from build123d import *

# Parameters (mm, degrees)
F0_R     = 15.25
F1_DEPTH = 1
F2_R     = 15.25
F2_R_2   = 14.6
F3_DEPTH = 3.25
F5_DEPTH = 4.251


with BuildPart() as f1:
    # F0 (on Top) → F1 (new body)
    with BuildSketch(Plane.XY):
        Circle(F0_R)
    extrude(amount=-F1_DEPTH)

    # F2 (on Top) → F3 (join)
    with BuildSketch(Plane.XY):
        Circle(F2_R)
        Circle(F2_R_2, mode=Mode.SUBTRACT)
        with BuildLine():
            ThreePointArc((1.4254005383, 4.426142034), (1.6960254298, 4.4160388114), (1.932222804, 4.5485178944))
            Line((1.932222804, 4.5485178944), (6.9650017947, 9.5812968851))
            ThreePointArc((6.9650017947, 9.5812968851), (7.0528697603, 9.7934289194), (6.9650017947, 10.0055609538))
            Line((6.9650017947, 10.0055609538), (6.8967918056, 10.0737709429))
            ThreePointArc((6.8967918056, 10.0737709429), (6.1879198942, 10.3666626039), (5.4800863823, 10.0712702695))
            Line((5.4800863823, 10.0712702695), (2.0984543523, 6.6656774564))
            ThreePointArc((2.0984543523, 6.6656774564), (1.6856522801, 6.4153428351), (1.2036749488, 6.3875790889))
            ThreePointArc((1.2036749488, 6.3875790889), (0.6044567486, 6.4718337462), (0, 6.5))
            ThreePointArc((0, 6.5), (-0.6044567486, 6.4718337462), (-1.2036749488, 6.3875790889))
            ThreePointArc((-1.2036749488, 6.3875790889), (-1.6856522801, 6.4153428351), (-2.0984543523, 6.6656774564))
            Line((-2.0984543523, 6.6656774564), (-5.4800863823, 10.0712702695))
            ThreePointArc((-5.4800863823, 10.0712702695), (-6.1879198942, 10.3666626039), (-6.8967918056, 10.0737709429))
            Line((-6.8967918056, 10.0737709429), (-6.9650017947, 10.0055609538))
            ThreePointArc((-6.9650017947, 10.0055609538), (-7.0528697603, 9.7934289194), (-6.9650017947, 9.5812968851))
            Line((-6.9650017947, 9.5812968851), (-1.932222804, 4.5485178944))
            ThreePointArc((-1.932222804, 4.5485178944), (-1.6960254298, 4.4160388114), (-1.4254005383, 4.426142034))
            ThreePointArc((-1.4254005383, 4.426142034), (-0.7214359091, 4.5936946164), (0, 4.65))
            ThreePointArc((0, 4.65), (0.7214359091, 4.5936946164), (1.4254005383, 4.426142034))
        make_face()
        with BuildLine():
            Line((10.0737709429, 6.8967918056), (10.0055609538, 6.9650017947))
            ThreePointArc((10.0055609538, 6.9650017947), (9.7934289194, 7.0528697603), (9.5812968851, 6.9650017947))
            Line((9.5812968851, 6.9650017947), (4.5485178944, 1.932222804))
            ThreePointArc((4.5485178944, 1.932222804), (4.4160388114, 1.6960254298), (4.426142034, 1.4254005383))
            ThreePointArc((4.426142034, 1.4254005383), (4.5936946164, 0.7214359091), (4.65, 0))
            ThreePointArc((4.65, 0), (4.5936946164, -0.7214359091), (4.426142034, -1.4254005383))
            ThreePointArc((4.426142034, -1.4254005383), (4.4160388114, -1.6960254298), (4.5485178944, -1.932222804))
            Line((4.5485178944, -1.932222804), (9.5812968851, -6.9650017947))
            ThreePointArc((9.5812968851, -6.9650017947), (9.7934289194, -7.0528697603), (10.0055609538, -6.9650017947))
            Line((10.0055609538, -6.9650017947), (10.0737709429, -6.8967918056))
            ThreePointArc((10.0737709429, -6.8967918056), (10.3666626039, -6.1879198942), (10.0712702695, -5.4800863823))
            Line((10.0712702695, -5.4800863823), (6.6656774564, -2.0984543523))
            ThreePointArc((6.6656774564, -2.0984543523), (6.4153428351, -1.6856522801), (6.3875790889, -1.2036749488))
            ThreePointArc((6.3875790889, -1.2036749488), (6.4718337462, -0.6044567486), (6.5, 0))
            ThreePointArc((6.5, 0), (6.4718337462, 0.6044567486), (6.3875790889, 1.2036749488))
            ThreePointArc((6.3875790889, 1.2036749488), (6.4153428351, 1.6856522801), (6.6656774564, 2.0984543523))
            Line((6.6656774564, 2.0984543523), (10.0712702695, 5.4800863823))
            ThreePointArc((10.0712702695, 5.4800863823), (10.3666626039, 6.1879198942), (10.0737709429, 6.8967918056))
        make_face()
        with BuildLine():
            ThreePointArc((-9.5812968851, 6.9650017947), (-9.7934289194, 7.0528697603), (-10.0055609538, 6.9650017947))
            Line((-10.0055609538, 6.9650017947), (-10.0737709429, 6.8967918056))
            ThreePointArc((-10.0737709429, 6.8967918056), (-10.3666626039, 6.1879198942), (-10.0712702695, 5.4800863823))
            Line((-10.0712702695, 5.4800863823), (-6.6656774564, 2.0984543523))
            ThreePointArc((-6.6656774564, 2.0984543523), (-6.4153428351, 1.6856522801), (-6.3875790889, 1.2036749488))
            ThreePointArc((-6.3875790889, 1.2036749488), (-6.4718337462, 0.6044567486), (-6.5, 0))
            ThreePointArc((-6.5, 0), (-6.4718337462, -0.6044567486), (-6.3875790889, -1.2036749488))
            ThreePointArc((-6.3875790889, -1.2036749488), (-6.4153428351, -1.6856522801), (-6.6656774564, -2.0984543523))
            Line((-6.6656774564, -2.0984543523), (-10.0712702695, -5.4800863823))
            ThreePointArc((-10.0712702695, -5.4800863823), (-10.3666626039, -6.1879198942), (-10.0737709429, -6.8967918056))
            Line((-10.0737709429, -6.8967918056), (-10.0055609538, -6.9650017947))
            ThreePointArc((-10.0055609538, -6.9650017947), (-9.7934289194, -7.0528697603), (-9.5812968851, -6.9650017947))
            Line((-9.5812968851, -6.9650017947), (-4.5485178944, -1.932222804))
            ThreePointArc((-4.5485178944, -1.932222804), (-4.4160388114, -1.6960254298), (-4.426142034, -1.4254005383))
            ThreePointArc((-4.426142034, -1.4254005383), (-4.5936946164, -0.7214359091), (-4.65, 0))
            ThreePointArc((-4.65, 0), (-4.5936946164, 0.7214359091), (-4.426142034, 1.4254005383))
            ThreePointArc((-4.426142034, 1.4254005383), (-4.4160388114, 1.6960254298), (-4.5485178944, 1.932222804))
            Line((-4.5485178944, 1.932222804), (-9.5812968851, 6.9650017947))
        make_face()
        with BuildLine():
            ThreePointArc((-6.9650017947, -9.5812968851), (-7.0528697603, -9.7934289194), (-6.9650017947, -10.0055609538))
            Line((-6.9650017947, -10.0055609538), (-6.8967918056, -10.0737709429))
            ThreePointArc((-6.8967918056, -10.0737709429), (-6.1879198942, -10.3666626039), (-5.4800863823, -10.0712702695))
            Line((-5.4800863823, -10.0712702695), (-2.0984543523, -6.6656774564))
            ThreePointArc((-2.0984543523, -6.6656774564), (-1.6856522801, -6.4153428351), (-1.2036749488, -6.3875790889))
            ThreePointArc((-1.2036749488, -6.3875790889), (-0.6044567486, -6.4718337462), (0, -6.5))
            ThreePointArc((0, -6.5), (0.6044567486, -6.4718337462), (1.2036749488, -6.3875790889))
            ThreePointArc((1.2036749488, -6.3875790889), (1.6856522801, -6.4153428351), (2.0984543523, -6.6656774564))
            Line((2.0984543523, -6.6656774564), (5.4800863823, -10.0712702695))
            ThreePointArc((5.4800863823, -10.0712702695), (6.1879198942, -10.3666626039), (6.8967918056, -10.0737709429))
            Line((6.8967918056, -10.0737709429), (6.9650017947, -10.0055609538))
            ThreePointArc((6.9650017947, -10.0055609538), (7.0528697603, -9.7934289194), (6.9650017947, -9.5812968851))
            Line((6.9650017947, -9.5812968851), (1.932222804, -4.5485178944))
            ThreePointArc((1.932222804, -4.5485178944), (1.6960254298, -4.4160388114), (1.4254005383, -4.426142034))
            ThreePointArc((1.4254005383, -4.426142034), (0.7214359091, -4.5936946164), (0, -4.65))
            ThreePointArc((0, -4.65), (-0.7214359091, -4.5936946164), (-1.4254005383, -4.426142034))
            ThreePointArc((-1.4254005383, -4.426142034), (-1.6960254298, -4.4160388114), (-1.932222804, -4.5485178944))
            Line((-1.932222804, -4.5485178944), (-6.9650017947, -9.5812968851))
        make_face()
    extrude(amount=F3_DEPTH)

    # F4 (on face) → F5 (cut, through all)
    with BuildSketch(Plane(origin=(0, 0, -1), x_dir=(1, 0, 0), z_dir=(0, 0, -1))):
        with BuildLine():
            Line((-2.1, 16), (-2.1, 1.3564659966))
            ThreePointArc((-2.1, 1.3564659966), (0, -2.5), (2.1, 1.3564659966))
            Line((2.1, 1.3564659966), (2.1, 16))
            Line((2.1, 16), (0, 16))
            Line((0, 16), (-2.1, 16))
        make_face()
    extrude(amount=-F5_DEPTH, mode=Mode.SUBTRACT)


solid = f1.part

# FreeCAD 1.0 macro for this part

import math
import FreeCAD as App
import Part
import Sketcher

doc = App.newDocument("Part")
params = doc.addObject("Spreadsheet::Sheet", "Params")
for row, (alias, value) in enumerate([
    ("sketch1_diameter", "30.5 mm"),
    ("pad1_length", "1 mm"),
    ("sketch2_radius", "1 mm"),
    ("sketch2_diameter", "30.5 mm"),
    ("sketch2_diameter2", "29.2 mm"),
    ("sketch2_radius2", "0.5 mm"),
    ("sketch2_radius3", "0.3 mm"),
    ("pad2_length", "3.25 mm"),
    ("sketch3_radius", "2.5 mm"),
    ("sketch3_width", "4.2 mm"),
], start=1):
    params.set(f"A{row}", alias)
    params.set(f"B{row}", "=" + value)
    params.setAlias(f"B{row}", alias)

body = doc.addObject("PartDesign::Body", "Body")

# Sketch on XY plane
sketch1 = body.newObject("Sketcher::SketchObject", "Sketch")
sketch1.AttachmentSupport = (doc.getObject("XY_Plane"), [""])
sketch1.MapMode = "FlatFace"
sketch1.addGeometry(Part.Circle(App.Vector(0, 0, 0), App.Vector(0, 0, 1), 15), False)
sketch1.addConstraint(Sketcher.Constraint("Coincident", 0, 3, -1, 1))
sketch1.addConstraint(Sketcher.Constraint("Diameter", 0, 30.5))
sketch1.setExpression("Constraints[1]", "Params.sketch1_diameter")
pad1 = body.newObject("PartDesign::Pad", "Pad")
pad1.Profile = sketch1
pad1.setExpression("Length", "Params.pad1_length")
pad1.Reversed = True

# Sketch on XY plane
sketch2 = body.newObject("Sketcher::SketchObject", "Sketch001")
sketch2.AttachmentSupport = (doc.getObject("XY_Plane"), [""])
sketch2.MapMode = "FlatFace"
sketch2.addGeometry(Part.Circle(App.Vector(0, 0, 0), App.Vector(0, 0, 1), 15.25), False)
sketch2.addGeometry(Part.Circle(App.Vector(0, 0, 0), App.Vector(0, 0, 1), 14.6), False)
sketch2.addGeometry(Part.ArcOfCircle(Part.Circle(App.Vector(1.58, 4.9, 0), App.Vector(0, 0, 1), 0.5), math.radians(-108), math.radians(-45)), False)
sketch2.addGeometry(Part.LineSegment(App.Vector(1.93, 4.55, 0), App.Vector(6.97, 9.58, 0)), False)
sketch2.addGeometry(Part.ArcOfCircle(Part.Circle(App.Vector(6.75, 9.79, 0), App.Vector(0, 0, 1), 0.3), math.radians(-45), math.radians(45)), False)
sketch2.addGeometry(Part.LineSegment(App.Vector(6.97, 10.01, 0), App.Vector(6.9, 10.07, 0)), False)
sketch2.addGeometry(Part.ArcOfCircle(Part.Circle(App.Vector(6.19, 9.37, 0), App.Vector(0, 0, 1), 1), math.radians(45), math.radians(135)), False)
sketch2.addGeometry(Part.LineSegment(App.Vector(5.48, 10.07, 0), App.Vector(2.1, 6.67, 0)), False)
sketch2.addGeometry(Part.ArcOfCircle(Part.Circle(App.Vector(1.39, 7.37, 0), App.Vector(0, 0, 1), 1), math.radians(-101), math.radians(-45)), False)
sketch2.addGeometry(Part.ArcOfCircle(Part.Circle(App.Vector(0, 0, 0), App.Vector(0, 0, 1), 6.5), math.radians(79.33), math.radians(90)), False)
sketch2.addGeometry(Part.ArcOfCircle(Part.Circle(App.Vector(0, 0, 0), App.Vector(0, 0, 1), 6.5), math.radians(90), math.radians(100.67)), False)
sketch2.addGeometry(Part.ArcOfCircle(Part.Circle(App.Vector(-1.39, 7.37, 0), App.Vector(0, 0, 1), 1), math.radians(-135), math.radians(-79)), False)
sketch2.addGeometry(Part.LineSegment(App.Vector(-2.1, 6.67, 0), App.Vector(-5.48, 10.07, 0)), False)
sketch2.addGeometry(Part.ArcOfCircle(Part.Circle(App.Vector(-6.19, 9.37, 0), App.Vector(0, 0, 1), 1), math.radians(45), math.radians(135)), False)
sketch2.addGeometry(Part.LineSegment(App.Vector(-6.9, 10.07, 0), App.Vector(-6.97, 10.01, 0)), False)
sketch2.addGeometry(Part.ArcOfCircle(Part.Circle(App.Vector(-6.75, 9.79, 0), App.Vector(0, 0, 1), 0.3), math.radians(135), math.radians(225)), False)
sketch2.addGeometry(Part.LineSegment(App.Vector(-6.97, 9.58, 0), App.Vector(-1.93, 4.55, 0)), False)
sketch2.addGeometry(Part.ArcOfCircle(Part.Circle(App.Vector(-1.58, 4.9, 0), App.Vector(0, 0, 1), 0.5), math.radians(-135), math.radians(-72)), False)
sketch2.addGeometry(Part.ArcOfCircle(Part.Circle(App.Vector(0, 0, 0), App.Vector(0, 0, 1), 4.65), math.radians(90), math.radians(107.85)), False)
sketch2.addGeometry(Part.ArcOfCircle(Part.Circle(App.Vector(0, 0, 0), App.Vector(0, 0, 1), 4.65), math.radians(72.15), math.radians(90)), False)
sketch2.addGeometry(Part.LineSegment(App.Vector(10.07, 6.9, 0), App.Vector(10.01, 6.97, 0)), False)
sketch2.addGeometry(Part.ArcOfCircle(Part.Circle(App.Vector(9.79, 6.75, 0), App.Vector(0, 0, 1), 0.3), math.radians(45), math.radians(135)), False)
sketch2.addGeometry(Part.LineSegment(App.Vector(9.58, 6.97, 0), App.Vector(4.55, 1.93, 0)), False)
sketch2.addGeometry(Part.ArcOfCircle(Part.Circle(App.Vector(4.9, 1.58, 0), App.Vector(0, 0, 1), 0.5), math.radians(135), math.radians(198)), False)
sketch2.addGeometry(Part.ArcOfCircle(Part.Circle(App.Vector(0, 0, 0), App.Vector(0, 0, 1), 4.65), math.radians(0), math.radians(17.85)), False)
sketch2.addGeometry(Part.ArcOfCircle(Part.Circle(App.Vector(0, 0, 0), App.Vector(0, 0, 1), 4.65), math.radians(-17.85), math.radians(0)), False)
sketch2.addGeometry(Part.ArcOfCircle(Part.Circle(App.Vector(4.9, -1.58, 0), App.Vector(0, 0, 1), 0.5), math.radians(162), math.radians(225)), False)
sketch2.addGeometry(Part.LineSegment(App.Vector(4.55, -1.93, 0), App.Vector(9.58, -6.97, 0)), False)
sketch2.addGeometry(Part.ArcOfCircle(Part.Circle(App.Vector(9.79, -6.75, 0), App.Vector(0, 0, 1), 0.3), math.radians(-135), math.radians(-45)), False)
sketch2.addGeometry(Part.LineSegment(App.Vector(10.01, -6.97, 0), App.Vector(10.07, -6.9, 0)), False)
sketch2.addGeometry(Part.ArcOfCircle(Part.Circle(App.Vector(9.37, -6.19, 0), App.Vector(0, 0, 1), 1), math.radians(-45), math.radians(45)), False)
sketch2.addGeometry(Part.LineSegment(App.Vector(10.07, -5.48, 0), App.Vector(6.67, -2.1, 0)), False)
sketch2.addGeometry(Part.ArcOfCircle(Part.Circle(App.Vector(7.37, -1.39, 0), App.Vector(0, 0, 1), 1), math.radians(169), math.radians(225)), False)
sketch2.addGeometry(Part.ArcOfCircle(Part.Circle(App.Vector(0, 0, 0), App.Vector(0, 0, 1), 6.5), math.radians(-10.67), math.radians(0)), False)
sketch2.addGeometry(Part.ArcOfCircle(Part.Circle(App.Vector(0, 0, 0), App.Vector(0, 0, 1), 6.5), math.radians(0), math.radians(10.67)), False)
sketch2.addGeometry(Part.ArcOfCircle(Part.Circle(App.Vector(7.37, 1.39, 0), App.Vector(0, 0, 1), 1), math.radians(135), math.radians(191)), False)
sketch2.addGeometry(Part.LineSegment(App.Vector(6.67, 2.1, 0), App.Vector(10.07, 5.48, 0)), False)
sketch2.addGeometry(Part.ArcOfCircle(Part.Circle(App.Vector(9.37, 6.19, 0), App.Vector(0, 0, 1), 1), math.radians(-45), math.radians(45)), False)
sketch2.addGeometry(Part.ArcOfCircle(Part.Circle(App.Vector(-9.79, 6.75, 0), App.Vector(0, 0, 1), 0.3), math.radians(45), math.radians(135)), False)
sketch2.addGeometry(Part.LineSegment(App.Vector(-10.01, 6.97, 0), App.Vector(-10.07, 6.9, 0)), False)
sketch2.addGeometry(Part.ArcOfCircle(Part.Circle(App.Vector(-9.37, 6.19, 0), App.Vector(0, 0, 1), 1), math.radians(135), math.radians(225)), False)
sketch2.addGeometry(Part.LineSegment(App.Vector(-10.07, 5.48, 0), App.Vector(-6.67, 2.1, 0)), False)
sketch2.addGeometry(Part.ArcOfCircle(Part.Circle(App.Vector(-7.37, 1.39, 0), App.Vector(0, 0, 1), 1), math.radians(-11), math.radians(45)), False)
sketch2.addGeometry(Part.ArcOfCircle(Part.Circle(App.Vector(0, 0, 0), App.Vector(0, 0, 1), 6.5), math.radians(169.33), math.radians(180)), False)
sketch2.addGeometry(Part.ArcOfCircle(Part.Circle(App.Vector(0, 0, 0), App.Vector(0, 0, 1), 6.5), math.radians(-180), math.radians(-169.33)), False)
sketch2.addGeometry(Part.ArcOfCircle(Part.Circle(App.Vector(-7.37, -1.39, 0), App.Vector(0, 0, 1), 1), math.radians(-45), math.radians(11)), False)
sketch2.addGeometry(Part.LineSegment(App.Vector(-6.67, -2.1, 0), App.Vector(-10.07, -5.48, 0)), False)
sketch2.addGeometry(Part.ArcOfCircle(Part.Circle(App.Vector(-9.37, -6.19, 0), App.Vector(0, 0, 1), 1), math.radians(135), math.radians(225)), False)
sketch2.addGeometry(Part.LineSegment(App.Vector(-10.07, -6.9, 0), App.Vector(-10.01, -6.97, 0)), False)
sketch2.addGeometry(Part.ArcOfCircle(Part.Circle(App.Vector(-9.79, -6.75, 0), App.Vector(0, 0, 1), 0.3), math.radians(-135), math.radians(-45)), False)
sketch2.addGeometry(Part.LineSegment(App.Vector(-9.58, -6.97, 0), App.Vector(-4.55, -1.93, 0)), False)
sketch2.addGeometry(Part.ArcOfCircle(Part.Circle(App.Vector(-4.9, -1.58, 0), App.Vector(0, 0, 1), 0.5), math.radians(-45), math.radians(18)), False)
sketch2.addGeometry(Part.ArcOfCircle(Part.Circle(App.Vector(0, 0, 0), App.Vector(0, 0, 1), 4.65), math.radians(180), math.radians(197.85)), False)
sketch2.addGeometry(Part.ArcOfCircle(Part.Circle(App.Vector(0, 0, 0), App.Vector(0, 0, 1), 4.65), math.radians(162.15), math.radians(180)), False)
sketch2.addGeometry(Part.ArcOfCircle(Part.Circle(App.Vector(-4.9, 1.58, 0), App.Vector(0, 0, 1), 0.5), math.radians(-18), math.radians(45)), False)
sketch2.addGeometry(Part.LineSegment(App.Vector(-4.55, 1.93, 0), App.Vector(-9.58, 6.97, 0)), False)
sketch2.addGeometry(Part.ArcOfCircle(Part.Circle(App.Vector(-6.75, -9.79, 0), App.Vector(0, 0, 1), 0.3), math.radians(135), math.radians(225)), False)
sketch2.addGeometry(Part.LineSegment(App.Vector(-6.97, -10.01, 0), App.Vector(-6.9, -10.07, 0)), False)
sketch2.addGeometry(Part.ArcOfCircle(Part.Circle(App.Vector(-6.19, -9.37, 0), App.Vector(0, 0, 1), 1), math.radians(-135), math.radians(-45)), False)
sketch2.addGeometry(Part.LineSegment(App.Vector(-5.48, -10.07, 0), App.Vector(-2.1, -6.67, 0)), False)
sketch2.addGeometry(Part.ArcOfCircle(Part.Circle(App.Vector(-1.39, -7.37, 0), App.Vector(0, 0, 1), 1), math.radians(79), math.radians(135)), False)
sketch2.addGeometry(Part.ArcOfCircle(Part.Circle(App.Vector(0, 0, 0), App.Vector(0, 0, 1), 6.5), math.radians(-100.67), math.radians(-90)), False)
sketch2.addGeometry(Part.ArcOfCircle(Part.Circle(App.Vector(0, 0, 0), App.Vector(0, 0, 1), 6.5), math.radians(-90), math.radians(-79.33)), False)
sketch2.addGeometry(Part.ArcOfCircle(Part.Circle(App.Vector(1.39, -7.37, 0), App.Vector(0, 0, 1), 1), math.radians(45), math.radians(101)), False)
sketch2.addGeometry(Part.LineSegment(App.Vector(2.1, -6.67, 0), App.Vector(5.48, -10.07, 0)), False)
sketch2.addGeometry(Part.ArcOfCircle(Part.Circle(App.Vector(6.19, -9.37, 0), App.Vector(0, 0, 1), 1), math.radians(-135), math.radians(-45)), False)
sketch2.addGeometry(Part.LineSegment(App.Vector(6.9, -10.07, 0), App.Vector(6.97, -10.01, 0)), False)
sketch2.addGeometry(Part.ArcOfCircle(Part.Circle(App.Vector(6.75, -9.79, 0), App.Vector(0, 0, 1), 0.3), math.radians(-45), math.radians(45)), False)
sketch2.addGeometry(Part.LineSegment(App.Vector(6.97, -9.58, 0), App.Vector(1.93, -4.55, 0)), False)
sketch2.addGeometry(Part.ArcOfCircle(Part.Circle(App.Vector(1.58, -4.9, 0), App.Vector(0, 0, 1), 0.5), math.radians(45), math.radians(108)), False)
sketch2.addGeometry(Part.ArcOfCircle(Part.Circle(App.Vector(0, 0, 0), App.Vector(0, 0, 1), 4.65), math.radians(-90), math.radians(-72.15)), False)
sketch2.addGeometry(Part.ArcOfCircle(Part.Circle(App.Vector(0, 0, 0), App.Vector(0, 0, 1), 4.65), math.radians(-107.85), math.radians(-90)), False)
sketch2.addGeometry(Part.ArcOfCircle(Part.Circle(App.Vector(-1.58, -4.9, 0), App.Vector(0, 0, 1), 0.5), math.radians(72), math.radians(135)), False)
sketch2.addGeometry(Part.LineSegment(App.Vector(-1.93, -4.55, 0), App.Vector(-6.97, -9.58, 0)), False)
sketch2.addConstraint(Sketcher.Constraint("Tangent", 2, 2, 3, 1))
sketch2.addConstraint(Sketcher.Constraint("Tangent", 3, 2, 4, 1))
sketch2.addConstraint(Sketcher.Constraint("Tangent", 4, 2, 5, 1))
sketch2.addConstraint(Sketcher.Constraint("Tangent", 5, 2, 6, 1))
sketch2.addConstraint(Sketcher.Constraint("Tangent", 6, 2, 7, 1))
sketch2.addConstraint(Sketcher.Constraint("Tangent", 7, 2, 8, 2))
sketch2.addConstraint(Sketcher.Constraint("Tangent", 8, 1, 9, 1))
sketch2.addConstraint(Sketcher.Constraint("Tangent", 9, 2, 10, 1))
sketch2.addConstraint(Sketcher.Constraint("Tangent", 10, 2, 11, 2))
sketch2.addConstraint(Sketcher.Constraint("Tangent", 11, 1, 12, 1))
sketch2.addConstraint(Sketcher.Constraint("Tangent", 12, 2, 13, 1))
sketch2.addConstraint(Sketcher.Constraint("Tangent", 13, 2, 14, 1))
sketch2.addConstraint(Sketcher.Constraint("Tangent", 14, 2, 15, 1))
sketch2.addConstraint(Sketcher.Constraint("Tangent", 15, 2, 16, 1))
sketch2.addConstraint(Sketcher.Constraint("Tangent", 16, 2, 17, 1))
sketch2.addConstraint(Sketcher.Constraint("Tangent", 17, 2, 18, 2))
sketch2.addConstraint(Sketcher.Constraint("Tangent", 18, 1, 19, 2))
sketch2.addConstraint(Sketcher.Constraint("Tangent", 19, 1, 2, 1))
sketch2.addConstraint(Sketcher.Constraint("Tangent", 20, 2, 21, 1))
sketch2.addConstraint(Sketcher.Constraint("Tangent", 21, 2, 22, 1))
sketch2.addConstraint(Sketcher.Constraint("Tangent", 22, 2, 23, 1))
sketch2.addConstraint(Sketcher.Constraint("Tangent", 23, 2, 24, 2))
sketch2.addConstraint(Sketcher.Constraint("Tangent", 24, 1, 25, 2))
sketch2.addConstraint(Sketcher.Constraint("Tangent", 25, 1, 26, 1))
sketch2.addConstraint(Sketcher.Constraint("Tangent", 26, 2, 27, 1))
sketch2.addConstraint(Sketcher.Constraint("Tangent", 27, 2, 28, 1))
sketch2.addConstraint(Sketcher.Constraint("Tangent", 28, 2, 29, 1))
sketch2.addConstraint(Sketcher.Constraint("Tangent", 29, 2, 30, 1))
sketch2.addConstraint(Sketcher.Constraint("Tangent", 30, 2, 31, 1))
sketch2.addConstraint(Sketcher.Constraint("Tangent", 31, 2, 32, 2))
sketch2.addConstraint(Sketcher.Constraint("Tangent", 32, 1, 33, 1))
sketch2.addConstraint(Sketcher.Constraint("Tangent", 33, 2, 34, 1))
sketch2.addConstraint(Sketcher.Constraint("Tangent", 34, 2, 35, 2))
sketch2.addConstraint(Sketcher.Constraint("Tangent", 35, 1, 36, 1))
sketch2.addConstraint(Sketcher.Constraint("Tangent", 36, 2, 37, 1))
sketch2.addConstraint(Sketcher.Constraint("Tangent", 37, 2, 20, 1))
sketch2.addConstraint(Sketcher.Constraint("Tangent", 38, 2, 39, 1))
sketch2.addConstraint(Sketcher.Constraint("Tangent", 39, 2, 40, 1))
sketch2.addConstraint(Sketcher.Constraint("Tangent", 40, 2, 41, 1))
sketch2.addConstraint(Sketcher.Constraint("Tangent", 41, 2, 42, 2))
sketch2.addConstraint(Sketcher.Constraint("Tangent", 42, 1, 43, 1))
sketch2.addConstraint(Sketcher.Constraint("Tangent", 43, 2, 44, 1))
sketch2.addConstraint(Sketcher.Constraint("Tangent", 44, 2, 45, 2))
sketch2.addConstraint(Sketcher.Constraint("Tangent", 45, 1, 46, 1))
sketch2.addConstraint(Sketcher.Constraint("Tangent", 46, 2, 47, 1))
sketch2.addConstraint(Sketcher.Constraint("Tangent", 47, 2, 48, 1))
sketch2.addConstraint(Sketcher.Constraint("Tangent", 48, 2, 49, 1))
sketch2.addConstraint(Sketcher.Constraint("Tangent", 49, 2, 50, 1))
sketch2.addConstraint(Sketcher.Constraint("Tangent", 50, 2, 51, 1))
sketch2.addConstraint(Sketcher.Constraint("Tangent", 51, 2, 52, 2))
sketch2.addConstraint(Sketcher.Constraint("Tangent", 52, 1, 53, 2))
sketch2.addConstraint(Sketcher.Constraint("Tangent", 53, 1, 54, 1))
sketch2.addConstraint(Sketcher.Constraint("Tangent", 54, 2, 55, 1))
sketch2.addConstraint(Sketcher.Constraint("Tangent", 55, 2, 38, 1))
sketch2.addConstraint(Sketcher.Constraint("Tangent", 56, 2, 57, 1))
sketch2.addConstraint(Sketcher.Constraint("Tangent", 57, 2, 58, 1))
sketch2.addConstraint(Sketcher.Constraint("Tangent", 58, 2, 59, 1))
sketch2.addConstraint(Sketcher.Constraint("Tangent", 59, 2, 60, 2))
sketch2.addConstraint(Sketcher.Constraint("Tangent", 60, 1, 61, 1))
sketch2.addConstraint(Sketcher.Constraint("Tangent", 61, 2, 62, 1))
sketch2.addConstraint(Sketcher.Constraint("Tangent", 62, 2, 63, 2))
sketch2.addConstraint(Sketcher.Constraint("Tangent", 63, 1, 64, 1))
sketch2.addConstraint(Sketcher.Constraint("Tangent", 64, 2, 65, 1))
sketch2.addConstraint(Sketcher.Constraint("Tangent", 65, 2, 66, 1))
sketch2.addConstraint(Sketcher.Constraint("Tangent", 66, 2, 67, 1))
sketch2.addConstraint(Sketcher.Constraint("Tangent", 67, 2, 68, 1))
sketch2.addConstraint(Sketcher.Constraint("Tangent", 68, 2, 69, 1))
sketch2.addConstraint(Sketcher.Constraint("Tangent", 69, 2, 70, 2))
sketch2.addConstraint(Sketcher.Constraint("Tangent", 70, 1, 71, 2))
sketch2.addConstraint(Sketcher.Constraint("Tangent", 71, 1, 72, 1))
sketch2.addConstraint(Sketcher.Constraint("Tangent", 72, 2, 73, 1))
sketch2.addConstraint(Sketcher.Constraint("Tangent", 73, 2, 56, 1))
sketch2.addConstraint(Sketcher.Constraint("Coincident", 0, 3, -1, 1))
sketch2.addConstraint(Sketcher.Constraint("Coincident", 1, 3, -1, 1))
sketch2.addConstraint(Sketcher.Constraint("Coincident", 9, 3, -1, 1))
sketch2.addConstraint(Sketcher.Constraint("Coincident", 18, 3, -1, 1))
sketch2.addConstraint(Sketcher.Constraint("Coincident", 24, 3, -1, 1))
sketch2.addConstraint(Sketcher.Constraint("Coincident", 33, 3, -1, 1))
sketch2.addConstraint(Sketcher.Constraint("Coincident", 43, 3, -1, 1))
sketch2.addConstraint(Sketcher.Constraint("Coincident", 52, 3, -1, 1))
sketch2.addConstraint(Sketcher.Constraint("Coincident", 61, 3, -1, 1))
sketch2.addConstraint(Sketcher.Constraint("Coincident", 70, 3, -1, 1))
sketch2.addConstraint(Sketcher.Constraint("Equal", 6, 8))
sketch2.addConstraint(Sketcher.Constraint("Equal", 9, 10))
sketch2.addConstraint(Sketcher.Constraint("Equal", 8, 11))
sketch2.addConstraint(Sketcher.Constraint("Equal", 11, 13))
sketch2.addConstraint(Sketcher.Constraint("Equal", 4, 15))
sketch2.addConstraint(Sketcher.Constraint("Equal", 2, 17))
sketch2.addConstraint(Sketcher.Constraint("Equal", 18, 19))
sketch2.addConstraint(Sketcher.Constraint("Equal", 15, 21))
sketch2.addConstraint(Sketcher.Constraint("Equal", 17, 23))
sketch2.addConstraint(Sketcher.Constraint("Equal", 19, 24))
sketch2.addConstraint(Sketcher.Constraint("Equal", 24, 25))
sketch2.addConstraint(Sketcher.Constraint("Equal", 23, 26))
sketch2.addConstraint(Sketcher.Constraint("Equal", 21, 28))
sketch2.addConstraint(Sketcher.Constraint("Equal", 13, 30))
sketch2.addConstraint(Sketcher.Constraint("Equal", 30, 32))
sketch2.addConstraint(Sketcher.Constraint("Equal", 10, 33))
sketch2.addConstraint(Sketcher.Constraint("Equal", 33, 34))
sketch2.addConstraint(Sketcher.Constraint("Equal", 32, 35))
sketch2.addConstraint(Sketcher.Constraint("Equal", 35, 37))
sketch2.addConstraint(Sketcher.Constraint("Equal", 28, 38))
sketch2.addConstraint(Sketcher.Constraint("Equal", 37, 40))
sketch2.addConstraint(Sketcher.Constraint("Equal", 40, 42))
sketch2.addConstraint(Sketcher.Constraint("Equal", 34, 43))
sketch2.addConstraint(Sketcher.Constraint("Equal", 43, 44))
sketch2.addConstraint(Sketcher.Constraint("Equal", 42, 45))
sketch2.addConstraint(Sketcher.Constraint("Equal", 45, 47))
sketch2.addConstraint(Sketcher.Constraint("Equal", 38, 49))
sketch2.addConstraint(Sketcher.Constraint("Equal", 26, 51))
sketch2.addConstraint(Sketcher.Constraint("Equal", 25, 52))
sketch2.addConstraint(Sketcher.Constraint("Equal", 52, 53))
sketch2.addConstraint(Sketcher.Constraint("Equal", 51, 54))
sketch2.addConstraint(Sketcher.Constraint("Equal", 49, 56))
sketch2.addConstraint(Sketcher.Constraint("Equal", 47, 58))
sketch2.addConstraint(Sketcher.Constraint("Equal", 58, 60))
sketch2.addConstraint(Sketcher.Constraint("Equal", 44, 61))
sketch2.addConstraint(Sketcher.Constraint("Equal", 61, 62))
sketch2.addConstraint(Sketcher.Constraint("Equal", 60, 63))
sketch2.addConstraint(Sketcher.Constraint("Equal", 63, 65))
sketch2.addConstraint(Sketcher.Constraint("Equal", 56, 67))
sketch2.addConstraint(Sketcher.Constraint("Equal", 54, 69))
sketch2.addConstraint(Sketcher.Constraint("Equal", 53, 70))
sketch2.addConstraint(Sketcher.Constraint("Equal", 70, 71))
sketch2.addConstraint(Sketcher.Constraint("Equal", 69, 72))
sketch2.addConstraint(Sketcher.Constraint("Symmetric", 28, 3, 38, 3, -1, 1))
sketch2.addConstraint(Sketcher.Constraint("Symmetric", 30, 3, 40, 3, -1, 1))
sketch2.addConstraint(Sketcher.Constraint("Symmetric", 37, 3, 47, 3, -1, 1))
sketch2.addConstraint(Sketcher.Constraint("Symmetric", 21, 3, 49, 3, -1, 1))
sketch2.addConstraint(Sketcher.Constraint("Symmetric", 4, 3, 56, 3, -1, 1))
sketch2.addConstraint(Sketcher.Constraint("Symmetric", 6, 3, 58, 3, -1, 1))
sketch2.addConstraint(Sketcher.Constraint("Symmetric", 13, 3, 65, 3, -1, 1))
sketch2.addConstraint(Sketcher.Constraint("Symmetric", 15, 3, 67, 3, -1, 1))
sketch2.addConstraint(Sketcher.Constraint("Symmetric", 6, 3, 13, 3, -2))
sketch2.addConstraint(Sketcher.Constraint("Symmetric", 4, 3, 15, 3, -2))
sketch2.addConstraint(Sketcher.Constraint("Symmetric", 21, 3, 38, 3, -2))
sketch2.addConstraint(Sketcher.Constraint("Symmetric", 37, 3, 40, 3, -2))
sketch2.addConstraint(Sketcher.Constraint("PointOnObject", 9, 2, -2))
sketch2.addConstraint(Sketcher.Constraint("PointOnObject", 18, 1, -2))
sketch2.addConstraint(Sketcher.Constraint("PointOnObject", 24, 1, -1))
sketch2.addConstraint(Sketcher.Constraint("PointOnObject", 33, 2, -1))
sketch2.addConstraint(Sketcher.Constraint("PointOnObject", 43, 2, -1))
sketch2.addConstraint(Sketcher.Constraint("PointOnObject", 52, 1, -1))
sketch2.addConstraint(Sketcher.Constraint("PointOnObject", 61, 2, -2))
sketch2.addConstraint(Sketcher.Constraint("PointOnObject", 70, 1, -2))
sketch2.addConstraint(Sketcher.Constraint("Perpendicular", 3, 5))
sketch2.addConstraint(Sketcher.Constraint("Perpendicular", 5, 14))
sketch2.addConstraint(Sketcher.Constraint("Perpendicular", 14, 16))
sketch2.addConstraint(Sketcher.Constraint("Parallel", 16, 20))
sketch2.addConstraint(Sketcher.Constraint("Perpendicular", 20, 22))
sketch2.addConstraint(Sketcher.Constraint("Perpendicular", 22, 27))
sketch2.addConstraint(Sketcher.Constraint("Perpendicular", 7, 31))
sketch2.addConstraint(Sketcher.Constraint("Perpendicular", 12, 36))
sketch2.addConstraint(Sketcher.Constraint("Parallel", 31, 41))
sketch2.addConstraint(Sketcher.Constraint("Parallel", 36, 46))
sketch2.addConstraint(Sketcher.Constraint("Perpendicular", 48, 50))
sketch2.addConstraint(Sketcher.Constraint("Perpendicular", 50, 55))
sketch2.addConstraint(Sketcher.Constraint("Perpendicular", 41, 59))
sketch2.addConstraint(Sketcher.Constraint("Perpendicular", 46, 64))
sketch2.addConstraint(Sketcher.Constraint("Perpendicular", 66, 68))
sketch2.addConstraint(Sketcher.Constraint("Perpendicular", 68, 73))
sketch2.addConstraint(Sketcher.Constraint("Horizontal", 8, 3, 11, 3))
sketch2.addConstraint(Sketcher.Constraint("Equal", 14, 20))
sketch2.addConstraint(Sketcher.Constraint("Equal", 16, 22))
sketch2.addConstraint(Sketcher.Constraint("Equal", 12, 31))
sketch2.addConstraint(Sketcher.Constraint("Radius", 6, 1.0))
sketch2.addConstraint(Sketcher.Constraint("Diameter", 0, 30.5))
sketch2.addConstraint(Sketcher.Constraint("Diameter", 1, 29.2))
sketch2.addConstraint(Sketcher.Constraint("Radius", 2, 0.5))
sketch2.addConstraint(Sketcher.Constraint("Radius", 4, 0.3))
sketch2.addConstraint(Sketcher.Constraint("Radius", 9, 6.5))
sketch2.addConstraint(Sketcher.Constraint("Radius", 18, 4.65))
sketch2.addConstraint(Sketcher.Constraint("DistanceX", -1, 1, 3, 2, 6.965002))
sketch2.addConstraint(Sketcher.Constraint("DistanceX", 17, 2, -1, 1, 1.425401))
sketch2.addConstraint(Sketcher.Constraint("DistanceX", -1, 1, 5, 2, 6.896792))
sketch2.addConstraint(Sketcher.Constraint("DistanceY", -1, 1, 6, 2, 10.07127))
sketch2.setExpression("Constraints[165]", "Params.sketch2_radius")
sketch2.setExpression("Constraints[166]", "Params.sketch2_diameter")
sketch2.setExpression("Constraints[167]", "Params.sketch2_diameter2")
sketch2.setExpression("Constraints[168]", "Params.sketch2_radius2")
sketch2.setExpression("Constraints[169]", "Params.sketch2_radius3")
pad2 = body.newObject("PartDesign::Pad", "Pad001")
pad2.Profile = sketch2
pad2.setExpression("Length", "Params.pad2_length")

# Sketch on XY plane
sketch3 = body.newObject("Sketcher::SketchObject", "Sketch002")
sketch3.AttachmentSupport = (doc.getObject("XY_Plane"), [""])
sketch3.MapMode = "FlatFace"
sketch3.AttachmentOffset = App.Placement(App.Vector(0, 0, -1), App.Rotation())
sketch3.addGeometry(Part.LineSegment(App.Vector(-2.1, -16, 0), App.Vector(-2.1, -1.4, 0)), False)
sketch3.addGeometry(Part.ArcOfCircle(Part.Circle(App.Vector(0, 0, 0), App.Vector(0, 0, 1), 2.5), math.radians(-33), math.radians(213)), False)
sketch3.addGeometry(Part.LineSegment(App.Vector(2.1, -1.4, 0), App.Vector(2.1, -16, 0)), False)
sketch3.addGeometry(Part.LineSegment(App.Vector(2.1, -16, 0), App.Vector(-2.1, -16, 0)), False)
sketch3.addConstraint(Sketcher.Constraint("Coincident", 0, 2, 1, 2))
sketch3.addConstraint(Sketcher.Constraint("Coincident", 1, 1, 2, 1))
sketch3.addConstraint(Sketcher.Constraint("Coincident", 2, 2, 3, 1))
sketch3.addConstraint(Sketcher.Constraint("Coincident", 3, 2, 0, 1))
sketch3.addConstraint(Sketcher.Constraint("Vertical", 0))
sketch3.addConstraint(Sketcher.Constraint("Vertical", 2))
sketch3.addConstraint(Sketcher.Constraint("Horizontal", 3))
sketch3.addConstraint(Sketcher.Constraint("Coincident", 1, 3, -1, 1))
sketch3.addConstraint(Sketcher.Constraint("Horizontal", 0, 2, 1, 1))
sketch3.addConstraint(Sketcher.Constraint("Radius", 1, 2.5))
sketch3.addConstraint(Sketcher.Constraint("DistanceX", 3, 2, 3, 1, 4.2))
sketch3.addConstraint(Sketcher.Constraint("DistanceY", 2, 2, -1, 1, 16.0))
sketch3.setExpression("Constraints[9]", "Params.sketch3_radius")
sketch3.setExpression("Constraints[10]", "Params.sketch3_width")
pocket1 = body.newObject("PartDesign::Pocket", "Pocket")
pocket1.Profile = sketch3
pocket1.Type = "ThroughAll"
pocket1.Reversed = True

doc.recompute()
